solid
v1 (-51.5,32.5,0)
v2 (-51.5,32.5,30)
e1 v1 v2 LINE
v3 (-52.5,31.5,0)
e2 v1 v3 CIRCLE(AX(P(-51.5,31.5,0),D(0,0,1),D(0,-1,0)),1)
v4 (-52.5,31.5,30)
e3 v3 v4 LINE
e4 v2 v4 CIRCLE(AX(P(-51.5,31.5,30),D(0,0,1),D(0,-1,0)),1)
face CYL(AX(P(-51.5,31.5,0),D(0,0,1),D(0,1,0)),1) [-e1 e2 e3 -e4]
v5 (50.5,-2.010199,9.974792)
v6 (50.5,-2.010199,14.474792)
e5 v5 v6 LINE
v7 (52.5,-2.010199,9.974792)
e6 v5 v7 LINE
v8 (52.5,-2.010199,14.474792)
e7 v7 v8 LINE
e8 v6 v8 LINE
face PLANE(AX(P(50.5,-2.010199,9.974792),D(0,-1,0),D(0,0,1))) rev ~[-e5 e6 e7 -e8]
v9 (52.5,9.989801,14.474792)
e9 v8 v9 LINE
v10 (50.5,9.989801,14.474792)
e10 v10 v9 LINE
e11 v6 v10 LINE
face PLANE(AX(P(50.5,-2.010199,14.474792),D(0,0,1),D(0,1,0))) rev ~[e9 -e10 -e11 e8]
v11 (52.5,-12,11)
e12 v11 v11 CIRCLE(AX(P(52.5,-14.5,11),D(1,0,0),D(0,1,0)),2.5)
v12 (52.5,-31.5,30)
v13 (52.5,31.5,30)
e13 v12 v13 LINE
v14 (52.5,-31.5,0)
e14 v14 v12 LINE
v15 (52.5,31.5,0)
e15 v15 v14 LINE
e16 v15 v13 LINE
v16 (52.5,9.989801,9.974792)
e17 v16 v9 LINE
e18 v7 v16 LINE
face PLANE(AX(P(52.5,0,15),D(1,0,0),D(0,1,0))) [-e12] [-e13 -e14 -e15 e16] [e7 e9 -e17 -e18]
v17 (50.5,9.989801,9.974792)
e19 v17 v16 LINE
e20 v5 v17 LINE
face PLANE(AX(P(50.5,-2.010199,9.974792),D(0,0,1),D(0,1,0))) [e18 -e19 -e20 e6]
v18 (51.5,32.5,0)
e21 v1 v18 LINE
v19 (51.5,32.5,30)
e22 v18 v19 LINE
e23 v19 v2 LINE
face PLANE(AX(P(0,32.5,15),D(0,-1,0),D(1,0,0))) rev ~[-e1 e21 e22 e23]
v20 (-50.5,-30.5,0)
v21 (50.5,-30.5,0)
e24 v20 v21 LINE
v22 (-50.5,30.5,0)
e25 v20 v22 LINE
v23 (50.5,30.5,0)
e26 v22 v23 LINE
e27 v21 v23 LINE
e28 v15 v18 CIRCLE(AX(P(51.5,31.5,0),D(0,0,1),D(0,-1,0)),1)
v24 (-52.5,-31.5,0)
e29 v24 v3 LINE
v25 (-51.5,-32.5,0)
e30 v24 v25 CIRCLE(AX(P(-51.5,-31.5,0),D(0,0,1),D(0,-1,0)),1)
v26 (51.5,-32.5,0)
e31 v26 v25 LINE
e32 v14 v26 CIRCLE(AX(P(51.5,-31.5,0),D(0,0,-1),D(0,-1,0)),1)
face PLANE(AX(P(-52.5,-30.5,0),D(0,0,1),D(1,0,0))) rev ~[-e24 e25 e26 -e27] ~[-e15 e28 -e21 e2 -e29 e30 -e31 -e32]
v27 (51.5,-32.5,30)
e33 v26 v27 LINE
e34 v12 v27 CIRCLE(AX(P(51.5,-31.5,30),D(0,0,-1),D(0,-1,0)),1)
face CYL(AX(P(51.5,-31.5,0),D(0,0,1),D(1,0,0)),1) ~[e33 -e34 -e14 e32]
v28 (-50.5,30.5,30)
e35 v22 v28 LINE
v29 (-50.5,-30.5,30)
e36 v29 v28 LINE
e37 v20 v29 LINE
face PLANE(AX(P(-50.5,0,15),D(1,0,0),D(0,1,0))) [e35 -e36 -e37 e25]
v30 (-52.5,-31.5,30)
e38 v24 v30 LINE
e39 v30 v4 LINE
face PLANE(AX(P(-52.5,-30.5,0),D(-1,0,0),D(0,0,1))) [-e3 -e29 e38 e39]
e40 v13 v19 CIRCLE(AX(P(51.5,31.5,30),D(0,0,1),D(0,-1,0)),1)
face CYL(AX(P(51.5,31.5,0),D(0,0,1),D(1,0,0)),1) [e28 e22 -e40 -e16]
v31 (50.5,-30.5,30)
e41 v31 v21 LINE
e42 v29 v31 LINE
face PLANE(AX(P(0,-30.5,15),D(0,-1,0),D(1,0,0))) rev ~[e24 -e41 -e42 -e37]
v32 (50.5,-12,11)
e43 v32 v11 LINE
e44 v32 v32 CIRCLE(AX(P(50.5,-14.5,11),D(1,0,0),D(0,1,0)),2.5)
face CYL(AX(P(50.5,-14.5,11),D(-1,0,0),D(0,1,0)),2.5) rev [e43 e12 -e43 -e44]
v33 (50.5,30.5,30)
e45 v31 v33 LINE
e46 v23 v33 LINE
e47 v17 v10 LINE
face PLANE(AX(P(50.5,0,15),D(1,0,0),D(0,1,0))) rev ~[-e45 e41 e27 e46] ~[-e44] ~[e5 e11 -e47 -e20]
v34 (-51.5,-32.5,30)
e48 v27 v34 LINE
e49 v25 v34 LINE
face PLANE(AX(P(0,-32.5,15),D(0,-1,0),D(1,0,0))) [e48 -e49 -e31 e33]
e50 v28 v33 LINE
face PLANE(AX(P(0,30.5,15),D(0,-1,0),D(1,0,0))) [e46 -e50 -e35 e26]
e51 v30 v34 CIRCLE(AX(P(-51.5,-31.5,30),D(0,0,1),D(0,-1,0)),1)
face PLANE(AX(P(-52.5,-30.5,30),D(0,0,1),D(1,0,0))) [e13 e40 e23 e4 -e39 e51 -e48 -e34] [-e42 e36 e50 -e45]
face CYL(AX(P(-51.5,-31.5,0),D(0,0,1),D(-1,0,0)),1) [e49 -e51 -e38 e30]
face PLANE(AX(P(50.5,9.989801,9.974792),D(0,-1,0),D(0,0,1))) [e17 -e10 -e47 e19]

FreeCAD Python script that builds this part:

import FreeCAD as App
import Part
import Sketcher
Q = App.Units.Quantity


def edges_at(feature, points):
    """Names of the edges that pass closest to the given points."""
    edges = feature.Shape.Edges
    near = lambda p: min(range(len(edges)), key=lambda i: edges[i].distToShape(Part.Vertex(*p))[0])
    return sorted({f"Edge{near(p) + 1}" for p in points})

doc = App.newDocument("Part")
body = doc.addObject("PartDesign::Body", "Body")

# Sketch on YZ plane
sketch1 = body.newObject("Sketcher::SketchObject", "Sketch")
sketch1.AttachmentSupport = (doc.getObject("YZ_Plane"), [""])
sketch1.MapMode = "FlatFace"
sketch1.addGeometry(Part.LineSegment(App.Vector(-32.5, 30, 0), App.Vector(-32.5, 0, 0)), False)
sketch1.addGeometry(Part.LineSegment(App.Vector(-32.5, 0, 0), App.Vector(32.5, 0, 0)), False)
sketch1.addGeometry(Part.LineSegment(App.Vector(32.5, 0, 0), App.Vector(32.5, 30, 0)), False)
sketch1.addGeometry(Part.LineSegment(App.Vector(32.5, 30, 0), App.Vector(-32.5, 30, 0)), False)
sketch1.addGeometry(Part.Circle(App.Vector(-14.5, 11, 0), App.Vector(0, 0, 1), 2.5), False)
sketch1.addGeometry(Part.LineSegment(App.Vector(10, 10, 0), App.Vector(-2, 10, 0)), False)
sketch1.addGeometry(Part.LineSegment(App.Vector(-2, 10, 0), App.Vector(-2, 14.5, 0)), False)
sketch1.addGeometry(Part.LineSegment(App.Vector(-2, 14.5, 0), App.Vector(10, 14.5, 0)), False)
sketch1.addGeometry(Part.LineSegment(App.Vector(10, 14.5, 0), App.Vector(10, 10, 0)), False)
sketch1.addConstraint(Sketcher.Constraint("Coincident", 0, 2, 1, 1))
sketch1.addConstraint(Sketcher.Constraint("Coincident", 1, 2, 2, 1))
sketch1.addConstraint(Sketcher.Constraint("Coincident", 2, 2, 3, 1))
sketch1.addConstraint(Sketcher.Constraint("Coincident", 3, 2, 0, 1))
sketch1.addConstraint(Sketcher.Constraint("Coincident", 5, 2, 6, 1))
sketch1.addConstraint(Sketcher.Constraint("Coincident", 6, 2, 7, 1))
sketch1.addConstraint(Sketcher.Constraint("Coincident", 7, 2, 8, 1))
sketch1.addConstraint(Sketcher.Constraint("Coincident", 8, 2, 5, 1))
sketch1.addConstraint(Sketcher.Constraint("Vertical", 0))
sketch1.addConstraint(Sketcher.Constraint("Horizontal", 1))
sketch1.addConstraint(Sketcher.Constraint("Vertical", 2))
sketch1.addConstraint(Sketcher.Constraint("Horizontal", 3))
sketch1.addConstraint(Sketcher.Constraint("Horizontal", 5))
sketch1.addConstraint(Sketcher.Constraint("Vertical", 6))
sketch1.addConstraint(Sketcher.Constraint("Horizontal", 7))
sketch1.addConstraint(Sketcher.Constraint("Vertical", 8))
sketch1.addConstraint(Sketcher.Constraint("Symmetric", 0, 2, 1, 2, -1, 1))
sketch1.addConstraint(Sketcher.Constraint("Diameter", 4, Q("5 mm")))
sketch1.addConstraint(Sketcher.Constraint("DistanceX", 1, 1, 1, 2, Q("65 mm")))
sketch1.addConstraint(Sketcher.Constraint("DistanceX", 5, 2, 5, 1, Q("12 mm")))
sketch1.addConstraint(Sketcher.Constraint("DistanceY", 0, 2, 0, 1, Q("30 mm")))
sketch1.addConstraint(Sketcher.Constraint("DistanceY", 6, 1, 6, 2, Q("4.5 mm")))
sketch1.addConstraint(Sketcher.Constraint("DistanceY", -1, 1, 4, 3, Q("11 mm")))
sketch1.addConstraint(Sketcher.Constraint("DistanceX", 0, 2, 4, 3, Q("18 mm")))
sketch1.addConstraint(Sketcher.Constraint("DistanceX", 5, 2, -1, 1, Q("2.010199 mm")))
sketch1.addConstraint(Sketcher.Constraint("DistanceY", -1, 1, 5, 2, Q("9.974792 mm")))
pad1 = body.newObject("PartDesign::Pad", "Pad")
pad1.Profile = sketch1
pad1.Length = 2
doc.recompute()

fillet = body.newObject("PartDesign::Fillet", "Fillet")
fillet.Base = (pad1, edges_at(pad1, [(2, 32.5, 15)]))
fillet.Radius = 1
doc.recompute()

fillet2 = body.newObject("PartDesign::Fillet", "Fillet001")
fillet2.Base = (fillet, edges_at(fillet, [(2, -32.5, 15)]))
fillet2.Radius = 1
body2 = doc.addObject("PartDesign::Body", "Body001")
doc.recompute()

body.Placement = App.Placement(App.Vector(50.5, 0, 0), App.Rotation(App.Vector(0, 0, 1), 0))
boolean = body2.newObject("PartDesign::Boolean", "Boolean")
boolean.Type = "Fuse"
boolean.addObjects([body])
body3 = doc.addObject("PartDesign::Body", "Body002")

# Sketch on XZ plane
sketch2 = body3.newObject("Sketcher::SketchObject", "Sketch001")
sketch2.AttachmentSupport = (doc.getObject("XZ_Plane002"), [""])
sketch2.MapMode = "FlatFace"
sketch2.addGeometry(Part.LineSegment(App.Vector(-52, 30, 0), App.Vector(-52, 0, 0)), False)
sketch2.addGeometry(Part.LineSegment(App.Vector(-52, 0, 0), App.Vector(52, 0, 0)), False)
sketch2.addGeometry(Part.LineSegment(App.Vector(52, 0, 0), App.Vector(52, 30, 0)), False)
sketch2.addGeometry(Part.LineSegment(App.Vector(52, 30, 0), App.Vector(-52, 30, 0)), False)
sketch2.addConstraint(Sketcher.Constraint("Coincident", 0, 2, 1, 1))
sketch2.addConstraint(Sketcher.Constraint("Coincident", 1, 2, 2, 1))
sketch2.addConstraint(Sketcher.Constraint("Coincident", 2, 2, 3, 1))
sketch2.addConstraint(Sketcher.Constraint("Coincident", 3, 2, 0, 1))
sketch2.addConstraint(Sketcher.Constraint("Vertical", 0))
sketch2.addConstraint(Sketcher.Constraint("Horizontal", 1))
sketch2.addConstraint(Sketcher.Constraint("Vertical", 2))
sketch2.addConstraint(Sketcher.Constraint("Horizontal", 3))
sketch2.addConstraint(Sketcher.Constraint("Symmetric", 0, 2, 1, 2, -1, 1))
sketch2.addConstraint(Sketcher.Constraint("DistanceX", 1, 1, 1, 2, Q("105 mm")))
sketch2.addConstraint(Sketcher.Constraint("DistanceY", 0, 2, 0, 1, Q("30 mm")))
pad2 = body3.newObject("PartDesign::Pad", "Pad001")
pad2.Profile = sketch2
pad2.Length = 2
doc.recompute()

fillet3 = body3.newObject("PartDesign::Fillet", "Fillet002")
fillet3.Base = (pad2, edges_at(pad2, [(-52.5, -2, 15)]))
fillet3.Radius = 1
doc.recompute()

fillet4 = body3.newObject("PartDesign::Fillet", "Fillet003")
fillet4.Base = (fillet3, edges_at(fillet3, [(52.5, -2, 15)]))
fillet4.Radius = 1
body4 = doc.addObject("PartDesign::Body", "Body003")
doc.recompute()

body3.Placement = App.Placement(App.Vector(0, -30.5, 0), App.Rotation(App.Vector(0, 0, 1), 0))
boolean2 = body4.newObject("PartDesign::Boolean", "Boolean001")
boolean2.Type = "Fuse"
boolean2.addObjects([body3])
body5 = doc.addObject("PartDesign::Body", "Body004")

# Sketch on YZ plane
sketch3 = body5.newObject("Sketcher::SketchObject", "Sketch002")
sketch3.AttachmentSupport = (doc.getObject("YZ_Plane004"), [""])
sketch3.MapMode = "FlatFace"
sketch3.addGeometry(Part.LineSegment(App.Vector(-32, 30, 0), App.Vector(-32, 0, 0)), False)
sketch3.addGeometry(Part.LineSegment(App.Vector(-32, 0, 0), App.Vector(32, 0, 0)), False)
sketch3.addGeometry(Part.LineSegment(App.Vector(32, 0, 0), App.Vector(32, 30, 0)), False)
sketch3.addGeometry(Part.LineSegment(App.Vector(32, 30, 0), App.Vector(-32, 30, 0)), False)
sketch3.addConstraint(Sketcher.Constraint("Coincident", 0, 2, 1, 1))
sketch3.addConstraint(Sketcher.Constraint("Coincident", 1, 2, 2, 1))
sketch3.addConstraint(Sketcher.Constraint("Coincident", 2, 2, 3, 1))
sketch3.addConstraint(Sketcher.Constraint("Coincident", 3, 2, 0, 1))
sketch3.addConstraint(Sketcher.Constraint("Vertical", 0))
sketch3.addConstraint(Sketcher.Constraint("Horizontal", 1))
sketch3.addConstraint(Sketcher.Constraint("Vertical", 2))
sketch3.addConstraint(Sketcher.Constraint("Horizontal", 3))
sketch3.addConstraint(Sketcher.Constraint("Symmetric", 0, 2, 1, 2, -1, 1))
sketch3.addConstraint(Sketcher.Constraint("DistanceX", 1, 1, 1, 2, Q("65 mm")))
sketch3.addConstraint(Sketcher.Constraint("DistanceY", 0, 2, 0, 1, Q("30 mm")))
pad3 = body5.newObject("PartDesign::Pad", "Pad002")
pad3.Profile = sketch3
pad3.Length = 2
doc.recompute()

fillet5 = body5.newObject("PartDesign::Fillet", "Fillet004")
fillet5.Base = (pad3, edges_at(pad3, [(0, 32.5, 15)]))
fillet5.Radius = 1
doc.recompute()

fillet6 = body5.newObject("PartDesign::Fillet", "Fillet005")
fillet6.Base = (fillet5, edges_at(fillet5, [(0, -32.5, 15)]))
fillet6.Radius = 1
body6 = doc.addObject("PartDesign::Body", "Body005")
doc.recompute()

body5.Placement = App.Placement(App.Vector(-52.5, 0, 0), App.Rotation(App.Vector(0, 0, 1), 0))
boolean3 = body6.newObject("PartDesign::Boolean", "Boolean002")
boolean3.Type = "Fuse"
boolean3.addObjects([body5])
body7 = doc.addObject("PartDesign::Body", "Body006")

# Sketch on XZ plane
sketch4 = body7.newObject("Sketcher::SketchObject", "Sketch003")
sketch4.AttachmentSupport = (doc.getObject("XZ_Plane006"), [""])
sketch4.MapMode = "FlatFace"
sketch4.addGeometry(Part.LineSegment(App.Vector(-52, 30, 0), App.Vector(-52, 0, 0)), False)
sketch4.addGeometry(Part.LineSegment(App.Vector(-52, 0, 0), App.Vector(52, 0, 0)), False)
sketch4.addGeometry(Part.LineSegment(App.Vector(52, 0, 0), App.Vector(52, 30, 0)), False)
sketch4.addGeometry(Part.LineSegment(App.Vector(52, 30, 0), App.Vector(-52, 30, 0)), False)
sketch4.addConstraint(Sketcher.Constraint("Coincident", 0, 2, 1, 1))
sketch4.addConstraint(Sketcher.Constraint("Coincident", 1, 2, 2, 1))
sketch4.addConstraint(Sketcher.Constraint("Coincident", 2, 2, 3, 1))
sketch4.addConstraint(Sketcher.Constraint("Coincident", 3, 2, 0, 1))
sketch4.addConstraint(Sketcher.Constraint("Vertical", 0))
sketch4.addConstraint(Sketcher.Constraint("Horizontal", 1))
sketch4.addConstraint(Sketcher.Constraint("Vertical", 2))
sketch4.addConstraint(Sketcher.Constraint("Horizontal", 3))
sketch4.addConstraint(Sketcher.Constraint("Symmetric", 0, 2, 1, 2, -1, 1))
sketch4.addConstraint(Sketcher.Constraint("DistanceX", 1, 1, 1, 2, Q("105 mm")))
sketch4.addConstraint(Sketcher.Constraint("DistanceY", 0, 2, 0, 1, Q("30 mm")))
pad4 = body7.newObject("PartDesign::Pad", "Pad003")
pad4.Profile = sketch4
pad4.Length = 2
doc.recompute()

fillet7 = body7.newObject("PartDesign::Fillet", "Fillet006")
fillet7.Base = (pad4, edges_at(pad4, [(52.5, 0, 15)]))
fillet7.Radius = 1
doc.recompute()

fillet8 = body7.newObject("PartDesign::Fillet", "Fillet007")
fillet8.Base = (fillet7, edges_at(fillet7, [(-52.5, 0, 15)]))
fillet8.Radius = 1
body8 = doc.addObject("PartDesign::Body", "Body007")
doc.recompute()

body7.Placement = App.Placement(App.Vector(0, 32.5, 0), App.Rotation(App.Vector(0, 0, 1), 0))
boolean4 = body8.newObject("PartDesign::Boolean", "Boolean003")
boolean4.Type = "Fuse"
boolean4.addObjects([body7])
doc.recompute()

boolean5 = body8.newObject("PartDesign::Boolean", "Boolean004")
boolean5.Type = "Fuse"
boolean5.addObjects([body2])
doc.recompute()

boolean6 = body8.newObject("PartDesign::Boolean", "Boolean005")
boolean6.Type = "Fuse"
boolean6.addObjects([body4])
doc.recompute()

boolean7 = body8.newObject("PartDesign::Boolean", "Boolean006")
boolean7.Type = "Fuse"
boolean7.addObjects([body6])

doc.recompute()
